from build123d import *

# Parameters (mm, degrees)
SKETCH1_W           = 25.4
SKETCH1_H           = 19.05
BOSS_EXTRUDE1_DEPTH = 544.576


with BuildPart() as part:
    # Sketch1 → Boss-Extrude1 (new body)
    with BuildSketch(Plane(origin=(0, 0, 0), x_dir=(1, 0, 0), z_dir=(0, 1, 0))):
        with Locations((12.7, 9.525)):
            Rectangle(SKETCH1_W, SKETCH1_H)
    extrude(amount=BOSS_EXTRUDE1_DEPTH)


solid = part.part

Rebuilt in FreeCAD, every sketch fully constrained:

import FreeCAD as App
import Part
import Sketcher

V = App.Vector
Q = App.Units.Quantity

doc = App.newDocument("Part")
params = doc.addObject("Spreadsheet::Sheet", "Params")
for row, (alias, value) in enumerate([
    ("sketch1_width", "1 in"),
    ("sketch1_height", "0.75 in"),
    ("pad1_length", "21.44 in"),
], start=1):
    params.set(f"A{row}", alias)
    params.set(f"B{row}", "=" + value)
    params.setAlias(f"B{row}", alias)

body = doc.addObject("PartDesign::Body", "Body")

# Sketch on XZ plane
sketch1 = doc.addObject("Sketcher::SketchObject", "Sketch")
body.addObject(sketch1)
sketch1.AttachmentSupport = (doc.XZ_Plane, [""])
sketch1.MapMode = "FlatFace"
sketch1.addGeometry(Part.LineSegment(V(0, -19.05, 0), V(0, 0, 0)), False)
sketch1.addGeometry(Part.LineSegment(V(0, 0, 0), V(25.4, 0, 0)), False)
sketch1.addGeometry(Part.LineSegment(V(25.4, 0, 0), V(25.4, -19.05, 0)), False)
sketch1.addGeometry(Part.LineSegment(V(25.4, -19.05, 0), V(0, -19.05, 0)), False)
sketch1.addConstraint(Sketcher.Constraint("Coincident", 0, 2, 1, 1))
sketch1.addConstraint(Sketcher.Constraint("Coincident", 1, 2, 2, 1))
sketch1.addConstraint(Sketcher.Constraint("Coincident", 2, 2, 3, 1))
sketch1.addConstraint(Sketcher.Constraint("Coincident", 3, 2, 0, 1))
sketch1.addConstraint(Sketcher.Constraint("Vertical", 0))
sketch1.addConstraint(Sketcher.Constraint("Horizontal", 1))
sketch1.addConstraint(Sketcher.Constraint("Vertical", 2))
sketch1.addConstraint(Sketcher.Constraint("Horizontal", 3))
sketch1.addConstraint(Sketcher.Constraint("Coincident", 0, 2, -1, 1))
sketch1.addConstraint(Sketcher.Constraint("DistanceX", 1, 1, 1, 2, Q("1 in")))
sketch1.addConstraint(Sketcher.Constraint("DistanceY", 0, 1, 0, 2, Q("0.75 in")))
sketch1.setExpression("Constraints[9]", "Params.sketch1_width")
sketch1.setExpression("Constraints[10]", "Params.sketch1_height")
pad1 = doc.addObject("PartDesign::Pad", "Pad")
body.addObject(pad1)
pad1.Profile = sketch1
pad1.setExpression("Length", "Params.pad1_length")
pad1.Reversed = True

doc.recompute()
